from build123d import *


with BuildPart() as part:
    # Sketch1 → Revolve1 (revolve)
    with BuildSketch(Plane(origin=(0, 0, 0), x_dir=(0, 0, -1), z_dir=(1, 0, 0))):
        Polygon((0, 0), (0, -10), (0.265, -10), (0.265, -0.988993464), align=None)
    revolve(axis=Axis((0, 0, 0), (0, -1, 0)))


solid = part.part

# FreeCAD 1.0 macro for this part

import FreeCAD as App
import Part
import Sketcher
from FreeCAD import Vector
Q = App.Units.Quantity


def add_polygon(sketch, points):
    """Adds a closed chain of lines whose ends are joined by coincident constraints."""
    first, n = sketch.GeometryCount, len(points)
    for a, b in zip(points, points[1:] + points[:1]):
        sketch.addGeometry(Part.LineSegment(App.Vector(*a, 0), App.Vector(*b, 0)), False)
    for i in range(n):
        sketch.addConstraint(Sketcher.Constraint("Coincident", first + i, 2, first + (i + 1) % n, 1))

doc = App.newDocument("Part")
body = doc.addObject("PartDesign::Body", "Body")

# Sketch on YZ plane
sketch1 = doc.addObject("Sketcher::SketchObject", "Sketch")
body.addObject(sketch1)
sketch1.AttachmentSupport = (doc.YZ_Plane, [""])
sketch1.MapMode = "FlatFace"
add_polygon(sketch1, [(0, 0), (-10, 0), (-10, -0.27), (-0.99, -0.27)])  # lines 0-3
sketch1.addConstraint([
    Sketcher.Constraint("Horizontal", 0),
    Sketcher.Constraint("Vertical", 1),
    Sketcher.Constraint("Horizontal", 2),
    Sketcher.Constraint("Coincident", 3, 2, -1, 1),
    Sketcher.Constraint("DistanceX", 0, 2, 0, 1, Q("10 mm")),
    Sketcher.Constraint("Angle", 3, Q("15 deg")),
    Sketcher.Constraint("DistanceY", 1, 2, 1, 1, Q("0.265 mm")),
])
revolution = doc.addObject("PartDesign::Revolution", "Revolution")
body.addObject(revolution)
revolution.Profile = sketch1
revolution.ReferenceAxis = (sketch1, ["H_Axis"])
revolution.Angle = 360

doc.recompute()
